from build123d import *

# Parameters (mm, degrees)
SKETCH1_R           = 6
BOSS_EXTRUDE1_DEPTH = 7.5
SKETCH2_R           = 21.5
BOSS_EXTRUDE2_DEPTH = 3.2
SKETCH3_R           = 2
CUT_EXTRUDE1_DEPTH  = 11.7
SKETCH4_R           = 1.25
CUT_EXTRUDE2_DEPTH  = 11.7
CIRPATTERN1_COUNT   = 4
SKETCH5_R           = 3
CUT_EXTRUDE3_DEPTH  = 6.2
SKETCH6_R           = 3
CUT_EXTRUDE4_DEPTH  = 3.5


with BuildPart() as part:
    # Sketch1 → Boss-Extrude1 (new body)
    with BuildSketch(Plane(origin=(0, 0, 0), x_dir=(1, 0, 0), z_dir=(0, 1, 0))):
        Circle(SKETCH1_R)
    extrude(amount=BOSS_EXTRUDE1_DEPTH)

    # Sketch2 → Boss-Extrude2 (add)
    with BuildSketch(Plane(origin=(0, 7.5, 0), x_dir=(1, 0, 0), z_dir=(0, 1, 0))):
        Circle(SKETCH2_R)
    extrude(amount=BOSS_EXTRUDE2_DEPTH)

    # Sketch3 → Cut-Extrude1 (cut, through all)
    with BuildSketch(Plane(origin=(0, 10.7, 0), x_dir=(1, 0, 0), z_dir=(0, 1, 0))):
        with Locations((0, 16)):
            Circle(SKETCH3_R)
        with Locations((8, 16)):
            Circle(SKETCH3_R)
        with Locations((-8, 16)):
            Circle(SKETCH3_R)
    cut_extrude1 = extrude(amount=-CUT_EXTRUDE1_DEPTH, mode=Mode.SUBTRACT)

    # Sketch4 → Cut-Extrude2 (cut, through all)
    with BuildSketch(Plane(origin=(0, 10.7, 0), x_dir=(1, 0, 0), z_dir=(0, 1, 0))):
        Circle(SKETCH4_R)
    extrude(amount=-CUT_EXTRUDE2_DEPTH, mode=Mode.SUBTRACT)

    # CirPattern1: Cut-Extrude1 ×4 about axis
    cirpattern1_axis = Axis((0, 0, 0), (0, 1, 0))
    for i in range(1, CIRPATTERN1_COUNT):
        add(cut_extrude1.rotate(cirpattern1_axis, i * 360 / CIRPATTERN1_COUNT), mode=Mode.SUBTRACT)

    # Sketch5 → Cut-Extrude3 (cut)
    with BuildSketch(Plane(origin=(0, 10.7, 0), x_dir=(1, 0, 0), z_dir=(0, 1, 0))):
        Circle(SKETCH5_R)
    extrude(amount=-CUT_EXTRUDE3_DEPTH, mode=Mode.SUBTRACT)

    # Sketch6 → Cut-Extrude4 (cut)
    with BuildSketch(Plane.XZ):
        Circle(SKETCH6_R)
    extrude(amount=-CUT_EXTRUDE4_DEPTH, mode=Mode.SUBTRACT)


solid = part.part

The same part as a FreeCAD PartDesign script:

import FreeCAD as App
import Part
import Sketcher

V = App.Vector

doc = App.newDocument("Part")
body = doc.addObject("PartDesign::Body", "Body")

# Sketch on XZ plane
sketch1 = doc.addObject("Sketcher::SketchObject", "Sketch")
body.addObject(sketch1)
sketch1.AttachmentSupport = (doc.XZ_Plane, [""])
sketch1.MapMode = "FlatFace"
sketch1.addGeometry(Part.Circle(V(0, 0, 0), V(0, 0, 1), 6), False)
sketch1.addConstraint(Sketcher.Constraint("Coincident", 0, 3, -1, 1))
sketch1.addConstraint(Sketcher.Constraint("Diameter", 0, 12.0))
pad1 = doc.addObject("PartDesign::Pad", "Pad")
body.addObject(pad1)
pad1.Profile = sketch1
pad1.Length = 7.5
pad1.Reversed = True

# Sketch on XZ plane
sketch2 = doc.addObject("Sketcher::SketchObject", "Sketch001")
body.addObject(sketch2)
sketch2.AttachmentSupport = (doc.XZ_Plane, [""])
sketch2.MapMode = "FlatFace"
sketch2.AttachmentOffset = App.Placement(V(0, 0, -7.5), App.Rotation())
sketch2.addGeometry(Part.Circle(V(0, 0, 0), V(0, 0, 1), 22), False)
sketch2.addConstraint(Sketcher.Constraint("Coincident", 0, 3, -1, 1))
sketch2.addConstraint(Sketcher.Constraint("Diameter", 0, 43.0))
pad2 = doc.addObject("PartDesign::Pad", "Pad001")
body.addObject(pad2)
pad2.Profile = sketch2
pad2.Length = 3.2
pad2.Reversed = True

# Sketch on XZ plane
sketch3 = doc.addObject("Sketcher::SketchObject", "Sketch002")
body.addObject(sketch3)
sketch3.AttachmentSupport = (doc.XZ_Plane, [""])
sketch3.MapMode = "FlatFace"
sketch3.AttachmentOffset = App.Placement(V(0, 0, -10.7), App.Rotation())
sketch3.addGeometry(Part.Circle(V(0, -16, 0), V(0, 0, 1), 2), False)
sketch3.addGeometry(Part.Circle(V(8, -16, 0), V(0, 0, 1), 2), False)
sketch3.addGeometry(Part.Circle(V(-8, -16, 0), V(0, 0, 1), 2), False)
sketch3.addConstraint(Sketcher.Constraint("Equal", 0, 1))
sketch3.addConstraint(Sketcher.Constraint("Equal", 1, 2))
sketch3.addConstraint(Sketcher.Constraint("Symmetric", 1, 3, 2, 3, -2))
sketch3.addConstraint(Sketcher.Constraint("PointOnObject", 0, 3, -2))
sketch3.addConstraint(Sketcher.Constraint("Horizontal", 0, 3, 1, 3))
sketch3.addConstraint(Sketcher.Constraint("Diameter", 0, 4.0))
sketch3.addConstraint(Sketcher.Constraint("DistanceY", 0, 3, -1, 1, 16.0))
sketch3.addConstraint(Sketcher.Constraint("DistanceX", -1, 1, 1, 3, 8.0))
pocket1 = doc.addObject("PartDesign::Pocket", "Pocket")
body.addObject(pocket1)
pocket1.Profile = sketch3
pocket1.Type = "ThroughAll"
pocket1.Reversed = True

# Sketch on XZ plane
sketch4 = doc.addObject("Sketcher::SketchObject", "Sketch003")
body.addObject(sketch4)
sketch4.AttachmentSupport = (doc.XZ_Plane, [""])
sketch4.MapMode = "FlatFace"
sketch4.AttachmentOffset = App.Placement(V(0, 0, -10.7), App.Rotation())
sketch4.addGeometry(Part.Circle(V(0, 0, 0), V(0, 0, 1), 1.2), False)
sketch4.addConstraint(Sketcher.Constraint("Coincident", 0, 3, -1, 1))
sketch4.addConstraint(Sketcher.Constraint("Diameter", 0, 2.5))
pocket2 = doc.addObject("PartDesign::Pocket", "Pocket001")
body.addObject(pocket2)
pocket2.Profile = sketch4
pocket2.Type = "ThroughAll"
pocket2.Reversed = True
doc.recompute()

polarpattern = doc.addObject("PartDesign::PolarPattern", "PolarPattern")
body.addObject(polarpattern)
polarpattern.Originals = [pocket1]
polarpattern.Axis = (doc.Y_Axis, [""])
polarpattern.Angle = 360
polarpattern.Occurrences = 4
body.Tip = polarpattern

# Sketch on XZ plane
sketch5 = doc.addObject("Sketcher::SketchObject", "Sketch004")
body.addObject(sketch5)
sketch5.AttachmentSupport = (doc.XZ_Plane, [""])
sketch5.MapMode = "FlatFace"
sketch5.AttachmentOffset = App.Placement(V(0, 0, -10.7), App.Rotation())
sketch5.addGeometry(Part.Circle(V(0, 0, 0), V(0, 0, 1), 3), False)
sketch5.addConstraint(Sketcher.Constraint("Coincident", 0, 3, -1, 1))
sketch5.addConstraint(Sketcher.Constraint("Diameter", 0, 6.0))
pocket3 = doc.addObject("PartDesign::Pocket", "Pocket002")
body.addObject(pocket3)
pocket3.Profile = sketch5
pocket3.Length = 6.2
pocket3.Reversed = True

# Sketch on XZ plane
sketch6 = doc.addObject("Sketcher::SketchObject", "Sketch005")
body.addObject(sketch6)
sketch6.AttachmentSupport = (doc.XZ_Plane, [""])
sketch6.MapMode = "FlatFace"
sketch6.addGeometry(Part.Circle(V(0, 0, 0), V(0, 0, 1), 3), False)
sketch6.addConstraint(Sketcher.Constraint("Coincident", 0, 3, -1, 1))
sketch6.addConstraint(Sketcher.Constraint("Diameter", 0, 6.0))
pocket4 = doc.addObject("PartDesign::Pocket", "Pocket003")
body.addObject(pocket4)
pocket4.Profile = sketch6
pocket4.Length = 3.5

doc.recompute()
